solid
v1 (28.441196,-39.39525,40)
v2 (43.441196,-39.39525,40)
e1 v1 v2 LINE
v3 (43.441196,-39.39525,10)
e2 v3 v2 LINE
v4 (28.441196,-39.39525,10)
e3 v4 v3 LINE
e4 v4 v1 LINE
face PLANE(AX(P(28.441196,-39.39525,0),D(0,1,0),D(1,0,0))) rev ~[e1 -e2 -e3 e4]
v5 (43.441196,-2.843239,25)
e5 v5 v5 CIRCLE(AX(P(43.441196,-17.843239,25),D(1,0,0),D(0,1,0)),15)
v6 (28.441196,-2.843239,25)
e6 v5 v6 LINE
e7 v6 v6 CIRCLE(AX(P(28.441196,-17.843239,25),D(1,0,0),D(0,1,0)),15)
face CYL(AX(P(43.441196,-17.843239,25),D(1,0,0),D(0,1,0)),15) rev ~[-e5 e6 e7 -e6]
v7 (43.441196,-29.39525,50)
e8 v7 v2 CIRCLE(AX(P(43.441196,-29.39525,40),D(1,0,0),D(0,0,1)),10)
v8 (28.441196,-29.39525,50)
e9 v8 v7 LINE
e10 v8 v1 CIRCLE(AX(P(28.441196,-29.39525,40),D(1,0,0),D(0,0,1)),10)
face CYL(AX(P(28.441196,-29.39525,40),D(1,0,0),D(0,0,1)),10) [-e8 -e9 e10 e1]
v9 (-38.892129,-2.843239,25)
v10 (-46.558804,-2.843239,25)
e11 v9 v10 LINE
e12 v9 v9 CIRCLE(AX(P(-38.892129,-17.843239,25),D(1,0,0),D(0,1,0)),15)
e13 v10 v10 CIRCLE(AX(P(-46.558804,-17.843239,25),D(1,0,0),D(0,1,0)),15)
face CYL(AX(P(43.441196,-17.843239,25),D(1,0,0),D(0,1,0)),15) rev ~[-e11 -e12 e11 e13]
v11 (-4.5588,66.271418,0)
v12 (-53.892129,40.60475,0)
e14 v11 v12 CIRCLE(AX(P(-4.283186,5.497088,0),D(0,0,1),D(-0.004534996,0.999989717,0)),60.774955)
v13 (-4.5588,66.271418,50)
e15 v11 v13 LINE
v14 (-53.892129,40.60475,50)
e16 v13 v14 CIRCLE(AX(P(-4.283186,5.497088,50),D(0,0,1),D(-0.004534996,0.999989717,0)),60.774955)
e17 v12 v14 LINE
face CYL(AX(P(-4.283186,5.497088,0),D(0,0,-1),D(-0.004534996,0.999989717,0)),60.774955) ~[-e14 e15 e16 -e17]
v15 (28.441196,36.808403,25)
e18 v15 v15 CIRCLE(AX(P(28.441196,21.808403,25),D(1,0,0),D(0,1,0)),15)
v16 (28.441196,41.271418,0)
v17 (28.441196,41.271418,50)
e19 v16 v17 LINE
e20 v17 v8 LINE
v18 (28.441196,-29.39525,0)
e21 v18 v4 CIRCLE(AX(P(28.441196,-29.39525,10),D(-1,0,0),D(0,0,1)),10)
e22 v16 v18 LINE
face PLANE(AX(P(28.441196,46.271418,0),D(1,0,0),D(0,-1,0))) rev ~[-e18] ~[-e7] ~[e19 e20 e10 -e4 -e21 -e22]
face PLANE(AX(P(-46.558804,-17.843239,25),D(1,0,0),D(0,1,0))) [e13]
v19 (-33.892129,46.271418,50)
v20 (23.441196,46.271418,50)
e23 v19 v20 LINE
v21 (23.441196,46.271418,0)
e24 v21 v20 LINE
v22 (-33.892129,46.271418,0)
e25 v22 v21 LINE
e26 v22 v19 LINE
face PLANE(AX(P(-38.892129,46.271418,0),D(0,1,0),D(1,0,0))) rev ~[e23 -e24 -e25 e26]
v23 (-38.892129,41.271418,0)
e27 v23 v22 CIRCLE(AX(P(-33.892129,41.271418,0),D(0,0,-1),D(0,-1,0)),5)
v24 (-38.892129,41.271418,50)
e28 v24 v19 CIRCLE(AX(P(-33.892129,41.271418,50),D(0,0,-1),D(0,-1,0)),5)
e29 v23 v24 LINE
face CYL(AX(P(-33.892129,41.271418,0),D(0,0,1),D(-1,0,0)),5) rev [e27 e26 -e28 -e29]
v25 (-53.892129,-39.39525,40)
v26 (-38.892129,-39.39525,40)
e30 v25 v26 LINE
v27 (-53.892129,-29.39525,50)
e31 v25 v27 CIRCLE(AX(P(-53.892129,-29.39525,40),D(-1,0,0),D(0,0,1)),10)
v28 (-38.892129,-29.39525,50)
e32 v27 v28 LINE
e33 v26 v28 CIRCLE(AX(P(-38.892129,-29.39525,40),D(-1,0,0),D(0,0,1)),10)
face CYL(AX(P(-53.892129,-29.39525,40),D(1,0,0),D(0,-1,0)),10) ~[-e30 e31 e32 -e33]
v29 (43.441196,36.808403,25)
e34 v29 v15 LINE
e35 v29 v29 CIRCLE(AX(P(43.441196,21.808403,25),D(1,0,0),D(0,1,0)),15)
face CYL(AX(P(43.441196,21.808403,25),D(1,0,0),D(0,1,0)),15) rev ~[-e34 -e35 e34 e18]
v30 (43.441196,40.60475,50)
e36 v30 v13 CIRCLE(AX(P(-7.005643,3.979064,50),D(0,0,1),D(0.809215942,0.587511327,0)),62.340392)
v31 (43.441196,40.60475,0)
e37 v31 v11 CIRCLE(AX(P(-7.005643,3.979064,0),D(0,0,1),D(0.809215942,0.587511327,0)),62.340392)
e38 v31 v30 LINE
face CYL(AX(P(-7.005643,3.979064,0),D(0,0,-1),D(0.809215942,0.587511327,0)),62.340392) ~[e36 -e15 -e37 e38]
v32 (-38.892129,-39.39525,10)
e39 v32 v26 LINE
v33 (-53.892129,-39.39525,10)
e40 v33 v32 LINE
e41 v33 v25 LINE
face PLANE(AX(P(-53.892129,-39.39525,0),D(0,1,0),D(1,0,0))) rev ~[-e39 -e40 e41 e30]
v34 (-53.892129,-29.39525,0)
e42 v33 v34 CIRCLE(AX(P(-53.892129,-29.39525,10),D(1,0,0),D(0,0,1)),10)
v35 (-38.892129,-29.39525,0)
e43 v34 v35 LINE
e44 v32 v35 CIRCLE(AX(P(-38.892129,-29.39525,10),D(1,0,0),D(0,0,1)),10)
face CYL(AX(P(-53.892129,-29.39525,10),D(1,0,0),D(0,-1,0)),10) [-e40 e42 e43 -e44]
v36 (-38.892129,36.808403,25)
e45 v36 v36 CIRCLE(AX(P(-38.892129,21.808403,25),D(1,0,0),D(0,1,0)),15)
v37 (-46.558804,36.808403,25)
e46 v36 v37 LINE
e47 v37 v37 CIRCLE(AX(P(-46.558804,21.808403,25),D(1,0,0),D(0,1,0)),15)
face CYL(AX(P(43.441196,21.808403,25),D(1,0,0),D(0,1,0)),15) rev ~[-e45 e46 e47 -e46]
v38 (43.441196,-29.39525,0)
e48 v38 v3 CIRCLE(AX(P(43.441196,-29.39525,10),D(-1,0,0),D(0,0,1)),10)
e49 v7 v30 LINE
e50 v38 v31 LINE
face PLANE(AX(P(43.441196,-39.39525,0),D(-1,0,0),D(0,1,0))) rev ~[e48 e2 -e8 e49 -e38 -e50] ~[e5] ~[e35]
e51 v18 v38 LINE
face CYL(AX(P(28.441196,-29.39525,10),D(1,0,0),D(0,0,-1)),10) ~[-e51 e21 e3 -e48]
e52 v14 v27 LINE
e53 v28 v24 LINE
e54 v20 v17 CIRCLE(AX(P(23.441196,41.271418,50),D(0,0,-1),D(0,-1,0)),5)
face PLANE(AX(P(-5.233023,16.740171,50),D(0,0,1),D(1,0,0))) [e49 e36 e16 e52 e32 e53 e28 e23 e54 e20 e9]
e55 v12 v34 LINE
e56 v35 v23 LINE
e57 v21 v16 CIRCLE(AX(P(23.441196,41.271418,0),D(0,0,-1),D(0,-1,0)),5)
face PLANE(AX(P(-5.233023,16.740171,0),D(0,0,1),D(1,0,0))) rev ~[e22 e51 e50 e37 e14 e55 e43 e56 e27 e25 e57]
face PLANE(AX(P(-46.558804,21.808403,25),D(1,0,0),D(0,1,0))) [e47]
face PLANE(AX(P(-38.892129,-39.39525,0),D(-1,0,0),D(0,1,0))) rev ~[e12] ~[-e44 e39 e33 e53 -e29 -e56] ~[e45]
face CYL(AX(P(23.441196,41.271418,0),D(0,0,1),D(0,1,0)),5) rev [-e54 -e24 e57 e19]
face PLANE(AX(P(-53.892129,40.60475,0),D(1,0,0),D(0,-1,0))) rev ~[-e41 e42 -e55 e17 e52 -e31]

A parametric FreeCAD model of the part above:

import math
import FreeCAD as App
import Part
import Sketcher

V = App.Vector


def edges_at(feature, points):
    """Names of the edges that pass closest to the given points."""
    edges = feature.Shape.Edges
    near = lambda p: min(range(len(edges)), key=lambda i: edges[i].distToShape(Part.Vertex(*p))[0])
    return sorted({f"Edge{near(p) + 1}" for p in points})

doc = App.newDocument("Part")
body = doc.addObject("PartDesign::Body", "Body")

sketch1 = body.newObject("Sketcher::SketchObject", "Sketch")
sketch1.AttachmentSupport = (doc.getObject("XY_Plane"), [""])
sketch1.MapMode = "FlatFace"
sketch1.addGeometry([
    Part.LineSegment(V(-53.892129, 40.60475, 0), V(-53.892129, -39.39525, 0)),
    Part.LineSegment(V(-53.892129, -39.39525, 0), V(-38.892129, -39.39525, 0)),
    Part.LineSegment(V(-38.892129, -39.39525, 0), V(-38.892129, 46.271418, 0)),
    Part.LineSegment(V(-38.892129, 46.271418, 0), V(28.441196, 46.271418, 0)),
    Part.LineSegment(V(28.441196, 46.271418, 0), V(28.441196, -39.39525, 0)),
    Part.LineSegment(V(28.441196, -39.39525, 0), V(43.441196, -39.39525, 0)),
    Part.LineSegment(V(43.441196, -39.39525, 0), V(43.441196, 40.60475, 0)),
    Part.ArcOfCircle(Part.Circle(V(-7.005643, 3.979064, 0), V(0, 0, 1), 62.340392), math.radians(35.980603), math.radians(87.750579)),
    Part.ArcOfCircle(Part.Circle(V(-4.283186, 5.497088, 0), V(0, 0, 1), 60.774955), math.radians(90.259837), math.radians(144.713409)),
], False)
sketch1.addConstraint([
    Sketcher.Constraint("Coincident", 0, 2, 1, 1),
    Sketcher.Constraint("Coincident", 1, 2, 2, 1),
    Sketcher.Constraint("Coincident", 2, 2, 3, 1),
    Sketcher.Constraint("Coincident", 3, 2, 4, 1),
    Sketcher.Constraint("Coincident", 4, 2, 5, 1),
    Sketcher.Constraint("Coincident", 5, 2, 6, 1),
    Sketcher.Constraint("Coincident", 6, 2, 7, 1),
    Sketcher.Constraint("Coincident", 7, 2, 8, 1),
    Sketcher.Constraint("Coincident", 8, 2, 0, 1),
    Sketcher.Constraint("Vertical", 0),
    Sketcher.Constraint("Horizontal", 1),
    Sketcher.Constraint("Vertical", 2),
    Sketcher.Constraint("Horizontal", 3),
    Sketcher.Constraint("Vertical", 4),
    Sketcher.Constraint("Horizontal", 5),
    Sketcher.Constraint("Vertical", 6),
    Sketcher.Constraint("Horizontal", 1, 2, 4, 2),
    Sketcher.Constraint("Horizontal", 6, 2, 8, 2),
    Sketcher.Constraint("Equal", 1, 5),
    Sketcher.Constraint("DistanceX", 1, 1, 1, 2, 15.0),
    Sketcher.Constraint("DistanceY", 0, 2, 0, 1, 80.0),
    Sketcher.Constraint("DistanceY", 3, 2, 7, 2, 20.0),
    Sketcher.Constraint("Radius", 7, 62.340392),
    Sketcher.Constraint("Radius", 8, 60.774955),
    Sketcher.Constraint("DistanceX", 7, 2, -1, 1, 4.5588),
    Sketcher.Constraint("DistanceX", 3, 1, 3, 2, 67.333325),
    Sketcher.Constraint("DistanceY", 2, 1, 2, 2, 85.666668),
    Sketcher.Constraint("DistanceX", 0, 2, -1, 1, 53.892129),
    Sketcher.Constraint("DistanceY", 0, 2, -1, 1, 39.39525),
])
pad1 = body.newObject("PartDesign::Pad", "Pad")
pad1.Profile = sketch1
pad1.Length = 50

sketch2 = body.newObject("Sketcher::SketchObject", "Sketch001")
sketch2.AttachmentSupport = (doc.getObject("YZ_Plane"), [""])
sketch2.MapMode = "FlatFace"
sketch2.AttachmentOffset = App.Placement(V(0, 0, 43.441196), App.Rotation())
sketch2.addGeometry([
    Part.Circle(V(-17.843239, 25, 0), V(0, 0, 1), 15),
    Part.Circle(V(21.808403, 25, 0), V(0, 0, 1), 15),
], False)
sketch2.addConstraint([
    Sketcher.Constraint("Equal", 0, 1),
    Sketcher.Constraint("Horizontal", 0, 3, 1, 3),
    Sketcher.Constraint("Diameter", 0, 30.0),
    Sketcher.Constraint("DistanceY", -1, 1, 0, 3, 25.0),
    Sketcher.Constraint("DistanceX", 0, 3, -1, 1, 17.843239),
    Sketcher.Constraint("DistanceX", 0, 3, 1, 3, 39.651642),
])
pocket1 = body.newObject("PartDesign::Pocket", "Pocket")
pocket1.Profile = sketch2
pocket1.Length = 90
doc.recompute()

fillet = body.newObject("PartDesign::Fillet", "Fillet")
fillet.Base = (pocket1, edges_at(pocket1, [
    (-46.392, -39.395, 50),
    (-46.392, -39.395, 0),
    (35.941, -39.395, 50),
    (35.941, -39.395, 0),
]))
fillet.Radius = 10
doc.recompute()

fillet2 = body.newObject("PartDesign::Fillet", "Fillet001")
fillet2.Base = (fillet, edges_at(fillet, [(28.441, 46.271, 25), (-38.892, 46.271, 25)]))
fillet2.Radius = 5

doc.recompute()
